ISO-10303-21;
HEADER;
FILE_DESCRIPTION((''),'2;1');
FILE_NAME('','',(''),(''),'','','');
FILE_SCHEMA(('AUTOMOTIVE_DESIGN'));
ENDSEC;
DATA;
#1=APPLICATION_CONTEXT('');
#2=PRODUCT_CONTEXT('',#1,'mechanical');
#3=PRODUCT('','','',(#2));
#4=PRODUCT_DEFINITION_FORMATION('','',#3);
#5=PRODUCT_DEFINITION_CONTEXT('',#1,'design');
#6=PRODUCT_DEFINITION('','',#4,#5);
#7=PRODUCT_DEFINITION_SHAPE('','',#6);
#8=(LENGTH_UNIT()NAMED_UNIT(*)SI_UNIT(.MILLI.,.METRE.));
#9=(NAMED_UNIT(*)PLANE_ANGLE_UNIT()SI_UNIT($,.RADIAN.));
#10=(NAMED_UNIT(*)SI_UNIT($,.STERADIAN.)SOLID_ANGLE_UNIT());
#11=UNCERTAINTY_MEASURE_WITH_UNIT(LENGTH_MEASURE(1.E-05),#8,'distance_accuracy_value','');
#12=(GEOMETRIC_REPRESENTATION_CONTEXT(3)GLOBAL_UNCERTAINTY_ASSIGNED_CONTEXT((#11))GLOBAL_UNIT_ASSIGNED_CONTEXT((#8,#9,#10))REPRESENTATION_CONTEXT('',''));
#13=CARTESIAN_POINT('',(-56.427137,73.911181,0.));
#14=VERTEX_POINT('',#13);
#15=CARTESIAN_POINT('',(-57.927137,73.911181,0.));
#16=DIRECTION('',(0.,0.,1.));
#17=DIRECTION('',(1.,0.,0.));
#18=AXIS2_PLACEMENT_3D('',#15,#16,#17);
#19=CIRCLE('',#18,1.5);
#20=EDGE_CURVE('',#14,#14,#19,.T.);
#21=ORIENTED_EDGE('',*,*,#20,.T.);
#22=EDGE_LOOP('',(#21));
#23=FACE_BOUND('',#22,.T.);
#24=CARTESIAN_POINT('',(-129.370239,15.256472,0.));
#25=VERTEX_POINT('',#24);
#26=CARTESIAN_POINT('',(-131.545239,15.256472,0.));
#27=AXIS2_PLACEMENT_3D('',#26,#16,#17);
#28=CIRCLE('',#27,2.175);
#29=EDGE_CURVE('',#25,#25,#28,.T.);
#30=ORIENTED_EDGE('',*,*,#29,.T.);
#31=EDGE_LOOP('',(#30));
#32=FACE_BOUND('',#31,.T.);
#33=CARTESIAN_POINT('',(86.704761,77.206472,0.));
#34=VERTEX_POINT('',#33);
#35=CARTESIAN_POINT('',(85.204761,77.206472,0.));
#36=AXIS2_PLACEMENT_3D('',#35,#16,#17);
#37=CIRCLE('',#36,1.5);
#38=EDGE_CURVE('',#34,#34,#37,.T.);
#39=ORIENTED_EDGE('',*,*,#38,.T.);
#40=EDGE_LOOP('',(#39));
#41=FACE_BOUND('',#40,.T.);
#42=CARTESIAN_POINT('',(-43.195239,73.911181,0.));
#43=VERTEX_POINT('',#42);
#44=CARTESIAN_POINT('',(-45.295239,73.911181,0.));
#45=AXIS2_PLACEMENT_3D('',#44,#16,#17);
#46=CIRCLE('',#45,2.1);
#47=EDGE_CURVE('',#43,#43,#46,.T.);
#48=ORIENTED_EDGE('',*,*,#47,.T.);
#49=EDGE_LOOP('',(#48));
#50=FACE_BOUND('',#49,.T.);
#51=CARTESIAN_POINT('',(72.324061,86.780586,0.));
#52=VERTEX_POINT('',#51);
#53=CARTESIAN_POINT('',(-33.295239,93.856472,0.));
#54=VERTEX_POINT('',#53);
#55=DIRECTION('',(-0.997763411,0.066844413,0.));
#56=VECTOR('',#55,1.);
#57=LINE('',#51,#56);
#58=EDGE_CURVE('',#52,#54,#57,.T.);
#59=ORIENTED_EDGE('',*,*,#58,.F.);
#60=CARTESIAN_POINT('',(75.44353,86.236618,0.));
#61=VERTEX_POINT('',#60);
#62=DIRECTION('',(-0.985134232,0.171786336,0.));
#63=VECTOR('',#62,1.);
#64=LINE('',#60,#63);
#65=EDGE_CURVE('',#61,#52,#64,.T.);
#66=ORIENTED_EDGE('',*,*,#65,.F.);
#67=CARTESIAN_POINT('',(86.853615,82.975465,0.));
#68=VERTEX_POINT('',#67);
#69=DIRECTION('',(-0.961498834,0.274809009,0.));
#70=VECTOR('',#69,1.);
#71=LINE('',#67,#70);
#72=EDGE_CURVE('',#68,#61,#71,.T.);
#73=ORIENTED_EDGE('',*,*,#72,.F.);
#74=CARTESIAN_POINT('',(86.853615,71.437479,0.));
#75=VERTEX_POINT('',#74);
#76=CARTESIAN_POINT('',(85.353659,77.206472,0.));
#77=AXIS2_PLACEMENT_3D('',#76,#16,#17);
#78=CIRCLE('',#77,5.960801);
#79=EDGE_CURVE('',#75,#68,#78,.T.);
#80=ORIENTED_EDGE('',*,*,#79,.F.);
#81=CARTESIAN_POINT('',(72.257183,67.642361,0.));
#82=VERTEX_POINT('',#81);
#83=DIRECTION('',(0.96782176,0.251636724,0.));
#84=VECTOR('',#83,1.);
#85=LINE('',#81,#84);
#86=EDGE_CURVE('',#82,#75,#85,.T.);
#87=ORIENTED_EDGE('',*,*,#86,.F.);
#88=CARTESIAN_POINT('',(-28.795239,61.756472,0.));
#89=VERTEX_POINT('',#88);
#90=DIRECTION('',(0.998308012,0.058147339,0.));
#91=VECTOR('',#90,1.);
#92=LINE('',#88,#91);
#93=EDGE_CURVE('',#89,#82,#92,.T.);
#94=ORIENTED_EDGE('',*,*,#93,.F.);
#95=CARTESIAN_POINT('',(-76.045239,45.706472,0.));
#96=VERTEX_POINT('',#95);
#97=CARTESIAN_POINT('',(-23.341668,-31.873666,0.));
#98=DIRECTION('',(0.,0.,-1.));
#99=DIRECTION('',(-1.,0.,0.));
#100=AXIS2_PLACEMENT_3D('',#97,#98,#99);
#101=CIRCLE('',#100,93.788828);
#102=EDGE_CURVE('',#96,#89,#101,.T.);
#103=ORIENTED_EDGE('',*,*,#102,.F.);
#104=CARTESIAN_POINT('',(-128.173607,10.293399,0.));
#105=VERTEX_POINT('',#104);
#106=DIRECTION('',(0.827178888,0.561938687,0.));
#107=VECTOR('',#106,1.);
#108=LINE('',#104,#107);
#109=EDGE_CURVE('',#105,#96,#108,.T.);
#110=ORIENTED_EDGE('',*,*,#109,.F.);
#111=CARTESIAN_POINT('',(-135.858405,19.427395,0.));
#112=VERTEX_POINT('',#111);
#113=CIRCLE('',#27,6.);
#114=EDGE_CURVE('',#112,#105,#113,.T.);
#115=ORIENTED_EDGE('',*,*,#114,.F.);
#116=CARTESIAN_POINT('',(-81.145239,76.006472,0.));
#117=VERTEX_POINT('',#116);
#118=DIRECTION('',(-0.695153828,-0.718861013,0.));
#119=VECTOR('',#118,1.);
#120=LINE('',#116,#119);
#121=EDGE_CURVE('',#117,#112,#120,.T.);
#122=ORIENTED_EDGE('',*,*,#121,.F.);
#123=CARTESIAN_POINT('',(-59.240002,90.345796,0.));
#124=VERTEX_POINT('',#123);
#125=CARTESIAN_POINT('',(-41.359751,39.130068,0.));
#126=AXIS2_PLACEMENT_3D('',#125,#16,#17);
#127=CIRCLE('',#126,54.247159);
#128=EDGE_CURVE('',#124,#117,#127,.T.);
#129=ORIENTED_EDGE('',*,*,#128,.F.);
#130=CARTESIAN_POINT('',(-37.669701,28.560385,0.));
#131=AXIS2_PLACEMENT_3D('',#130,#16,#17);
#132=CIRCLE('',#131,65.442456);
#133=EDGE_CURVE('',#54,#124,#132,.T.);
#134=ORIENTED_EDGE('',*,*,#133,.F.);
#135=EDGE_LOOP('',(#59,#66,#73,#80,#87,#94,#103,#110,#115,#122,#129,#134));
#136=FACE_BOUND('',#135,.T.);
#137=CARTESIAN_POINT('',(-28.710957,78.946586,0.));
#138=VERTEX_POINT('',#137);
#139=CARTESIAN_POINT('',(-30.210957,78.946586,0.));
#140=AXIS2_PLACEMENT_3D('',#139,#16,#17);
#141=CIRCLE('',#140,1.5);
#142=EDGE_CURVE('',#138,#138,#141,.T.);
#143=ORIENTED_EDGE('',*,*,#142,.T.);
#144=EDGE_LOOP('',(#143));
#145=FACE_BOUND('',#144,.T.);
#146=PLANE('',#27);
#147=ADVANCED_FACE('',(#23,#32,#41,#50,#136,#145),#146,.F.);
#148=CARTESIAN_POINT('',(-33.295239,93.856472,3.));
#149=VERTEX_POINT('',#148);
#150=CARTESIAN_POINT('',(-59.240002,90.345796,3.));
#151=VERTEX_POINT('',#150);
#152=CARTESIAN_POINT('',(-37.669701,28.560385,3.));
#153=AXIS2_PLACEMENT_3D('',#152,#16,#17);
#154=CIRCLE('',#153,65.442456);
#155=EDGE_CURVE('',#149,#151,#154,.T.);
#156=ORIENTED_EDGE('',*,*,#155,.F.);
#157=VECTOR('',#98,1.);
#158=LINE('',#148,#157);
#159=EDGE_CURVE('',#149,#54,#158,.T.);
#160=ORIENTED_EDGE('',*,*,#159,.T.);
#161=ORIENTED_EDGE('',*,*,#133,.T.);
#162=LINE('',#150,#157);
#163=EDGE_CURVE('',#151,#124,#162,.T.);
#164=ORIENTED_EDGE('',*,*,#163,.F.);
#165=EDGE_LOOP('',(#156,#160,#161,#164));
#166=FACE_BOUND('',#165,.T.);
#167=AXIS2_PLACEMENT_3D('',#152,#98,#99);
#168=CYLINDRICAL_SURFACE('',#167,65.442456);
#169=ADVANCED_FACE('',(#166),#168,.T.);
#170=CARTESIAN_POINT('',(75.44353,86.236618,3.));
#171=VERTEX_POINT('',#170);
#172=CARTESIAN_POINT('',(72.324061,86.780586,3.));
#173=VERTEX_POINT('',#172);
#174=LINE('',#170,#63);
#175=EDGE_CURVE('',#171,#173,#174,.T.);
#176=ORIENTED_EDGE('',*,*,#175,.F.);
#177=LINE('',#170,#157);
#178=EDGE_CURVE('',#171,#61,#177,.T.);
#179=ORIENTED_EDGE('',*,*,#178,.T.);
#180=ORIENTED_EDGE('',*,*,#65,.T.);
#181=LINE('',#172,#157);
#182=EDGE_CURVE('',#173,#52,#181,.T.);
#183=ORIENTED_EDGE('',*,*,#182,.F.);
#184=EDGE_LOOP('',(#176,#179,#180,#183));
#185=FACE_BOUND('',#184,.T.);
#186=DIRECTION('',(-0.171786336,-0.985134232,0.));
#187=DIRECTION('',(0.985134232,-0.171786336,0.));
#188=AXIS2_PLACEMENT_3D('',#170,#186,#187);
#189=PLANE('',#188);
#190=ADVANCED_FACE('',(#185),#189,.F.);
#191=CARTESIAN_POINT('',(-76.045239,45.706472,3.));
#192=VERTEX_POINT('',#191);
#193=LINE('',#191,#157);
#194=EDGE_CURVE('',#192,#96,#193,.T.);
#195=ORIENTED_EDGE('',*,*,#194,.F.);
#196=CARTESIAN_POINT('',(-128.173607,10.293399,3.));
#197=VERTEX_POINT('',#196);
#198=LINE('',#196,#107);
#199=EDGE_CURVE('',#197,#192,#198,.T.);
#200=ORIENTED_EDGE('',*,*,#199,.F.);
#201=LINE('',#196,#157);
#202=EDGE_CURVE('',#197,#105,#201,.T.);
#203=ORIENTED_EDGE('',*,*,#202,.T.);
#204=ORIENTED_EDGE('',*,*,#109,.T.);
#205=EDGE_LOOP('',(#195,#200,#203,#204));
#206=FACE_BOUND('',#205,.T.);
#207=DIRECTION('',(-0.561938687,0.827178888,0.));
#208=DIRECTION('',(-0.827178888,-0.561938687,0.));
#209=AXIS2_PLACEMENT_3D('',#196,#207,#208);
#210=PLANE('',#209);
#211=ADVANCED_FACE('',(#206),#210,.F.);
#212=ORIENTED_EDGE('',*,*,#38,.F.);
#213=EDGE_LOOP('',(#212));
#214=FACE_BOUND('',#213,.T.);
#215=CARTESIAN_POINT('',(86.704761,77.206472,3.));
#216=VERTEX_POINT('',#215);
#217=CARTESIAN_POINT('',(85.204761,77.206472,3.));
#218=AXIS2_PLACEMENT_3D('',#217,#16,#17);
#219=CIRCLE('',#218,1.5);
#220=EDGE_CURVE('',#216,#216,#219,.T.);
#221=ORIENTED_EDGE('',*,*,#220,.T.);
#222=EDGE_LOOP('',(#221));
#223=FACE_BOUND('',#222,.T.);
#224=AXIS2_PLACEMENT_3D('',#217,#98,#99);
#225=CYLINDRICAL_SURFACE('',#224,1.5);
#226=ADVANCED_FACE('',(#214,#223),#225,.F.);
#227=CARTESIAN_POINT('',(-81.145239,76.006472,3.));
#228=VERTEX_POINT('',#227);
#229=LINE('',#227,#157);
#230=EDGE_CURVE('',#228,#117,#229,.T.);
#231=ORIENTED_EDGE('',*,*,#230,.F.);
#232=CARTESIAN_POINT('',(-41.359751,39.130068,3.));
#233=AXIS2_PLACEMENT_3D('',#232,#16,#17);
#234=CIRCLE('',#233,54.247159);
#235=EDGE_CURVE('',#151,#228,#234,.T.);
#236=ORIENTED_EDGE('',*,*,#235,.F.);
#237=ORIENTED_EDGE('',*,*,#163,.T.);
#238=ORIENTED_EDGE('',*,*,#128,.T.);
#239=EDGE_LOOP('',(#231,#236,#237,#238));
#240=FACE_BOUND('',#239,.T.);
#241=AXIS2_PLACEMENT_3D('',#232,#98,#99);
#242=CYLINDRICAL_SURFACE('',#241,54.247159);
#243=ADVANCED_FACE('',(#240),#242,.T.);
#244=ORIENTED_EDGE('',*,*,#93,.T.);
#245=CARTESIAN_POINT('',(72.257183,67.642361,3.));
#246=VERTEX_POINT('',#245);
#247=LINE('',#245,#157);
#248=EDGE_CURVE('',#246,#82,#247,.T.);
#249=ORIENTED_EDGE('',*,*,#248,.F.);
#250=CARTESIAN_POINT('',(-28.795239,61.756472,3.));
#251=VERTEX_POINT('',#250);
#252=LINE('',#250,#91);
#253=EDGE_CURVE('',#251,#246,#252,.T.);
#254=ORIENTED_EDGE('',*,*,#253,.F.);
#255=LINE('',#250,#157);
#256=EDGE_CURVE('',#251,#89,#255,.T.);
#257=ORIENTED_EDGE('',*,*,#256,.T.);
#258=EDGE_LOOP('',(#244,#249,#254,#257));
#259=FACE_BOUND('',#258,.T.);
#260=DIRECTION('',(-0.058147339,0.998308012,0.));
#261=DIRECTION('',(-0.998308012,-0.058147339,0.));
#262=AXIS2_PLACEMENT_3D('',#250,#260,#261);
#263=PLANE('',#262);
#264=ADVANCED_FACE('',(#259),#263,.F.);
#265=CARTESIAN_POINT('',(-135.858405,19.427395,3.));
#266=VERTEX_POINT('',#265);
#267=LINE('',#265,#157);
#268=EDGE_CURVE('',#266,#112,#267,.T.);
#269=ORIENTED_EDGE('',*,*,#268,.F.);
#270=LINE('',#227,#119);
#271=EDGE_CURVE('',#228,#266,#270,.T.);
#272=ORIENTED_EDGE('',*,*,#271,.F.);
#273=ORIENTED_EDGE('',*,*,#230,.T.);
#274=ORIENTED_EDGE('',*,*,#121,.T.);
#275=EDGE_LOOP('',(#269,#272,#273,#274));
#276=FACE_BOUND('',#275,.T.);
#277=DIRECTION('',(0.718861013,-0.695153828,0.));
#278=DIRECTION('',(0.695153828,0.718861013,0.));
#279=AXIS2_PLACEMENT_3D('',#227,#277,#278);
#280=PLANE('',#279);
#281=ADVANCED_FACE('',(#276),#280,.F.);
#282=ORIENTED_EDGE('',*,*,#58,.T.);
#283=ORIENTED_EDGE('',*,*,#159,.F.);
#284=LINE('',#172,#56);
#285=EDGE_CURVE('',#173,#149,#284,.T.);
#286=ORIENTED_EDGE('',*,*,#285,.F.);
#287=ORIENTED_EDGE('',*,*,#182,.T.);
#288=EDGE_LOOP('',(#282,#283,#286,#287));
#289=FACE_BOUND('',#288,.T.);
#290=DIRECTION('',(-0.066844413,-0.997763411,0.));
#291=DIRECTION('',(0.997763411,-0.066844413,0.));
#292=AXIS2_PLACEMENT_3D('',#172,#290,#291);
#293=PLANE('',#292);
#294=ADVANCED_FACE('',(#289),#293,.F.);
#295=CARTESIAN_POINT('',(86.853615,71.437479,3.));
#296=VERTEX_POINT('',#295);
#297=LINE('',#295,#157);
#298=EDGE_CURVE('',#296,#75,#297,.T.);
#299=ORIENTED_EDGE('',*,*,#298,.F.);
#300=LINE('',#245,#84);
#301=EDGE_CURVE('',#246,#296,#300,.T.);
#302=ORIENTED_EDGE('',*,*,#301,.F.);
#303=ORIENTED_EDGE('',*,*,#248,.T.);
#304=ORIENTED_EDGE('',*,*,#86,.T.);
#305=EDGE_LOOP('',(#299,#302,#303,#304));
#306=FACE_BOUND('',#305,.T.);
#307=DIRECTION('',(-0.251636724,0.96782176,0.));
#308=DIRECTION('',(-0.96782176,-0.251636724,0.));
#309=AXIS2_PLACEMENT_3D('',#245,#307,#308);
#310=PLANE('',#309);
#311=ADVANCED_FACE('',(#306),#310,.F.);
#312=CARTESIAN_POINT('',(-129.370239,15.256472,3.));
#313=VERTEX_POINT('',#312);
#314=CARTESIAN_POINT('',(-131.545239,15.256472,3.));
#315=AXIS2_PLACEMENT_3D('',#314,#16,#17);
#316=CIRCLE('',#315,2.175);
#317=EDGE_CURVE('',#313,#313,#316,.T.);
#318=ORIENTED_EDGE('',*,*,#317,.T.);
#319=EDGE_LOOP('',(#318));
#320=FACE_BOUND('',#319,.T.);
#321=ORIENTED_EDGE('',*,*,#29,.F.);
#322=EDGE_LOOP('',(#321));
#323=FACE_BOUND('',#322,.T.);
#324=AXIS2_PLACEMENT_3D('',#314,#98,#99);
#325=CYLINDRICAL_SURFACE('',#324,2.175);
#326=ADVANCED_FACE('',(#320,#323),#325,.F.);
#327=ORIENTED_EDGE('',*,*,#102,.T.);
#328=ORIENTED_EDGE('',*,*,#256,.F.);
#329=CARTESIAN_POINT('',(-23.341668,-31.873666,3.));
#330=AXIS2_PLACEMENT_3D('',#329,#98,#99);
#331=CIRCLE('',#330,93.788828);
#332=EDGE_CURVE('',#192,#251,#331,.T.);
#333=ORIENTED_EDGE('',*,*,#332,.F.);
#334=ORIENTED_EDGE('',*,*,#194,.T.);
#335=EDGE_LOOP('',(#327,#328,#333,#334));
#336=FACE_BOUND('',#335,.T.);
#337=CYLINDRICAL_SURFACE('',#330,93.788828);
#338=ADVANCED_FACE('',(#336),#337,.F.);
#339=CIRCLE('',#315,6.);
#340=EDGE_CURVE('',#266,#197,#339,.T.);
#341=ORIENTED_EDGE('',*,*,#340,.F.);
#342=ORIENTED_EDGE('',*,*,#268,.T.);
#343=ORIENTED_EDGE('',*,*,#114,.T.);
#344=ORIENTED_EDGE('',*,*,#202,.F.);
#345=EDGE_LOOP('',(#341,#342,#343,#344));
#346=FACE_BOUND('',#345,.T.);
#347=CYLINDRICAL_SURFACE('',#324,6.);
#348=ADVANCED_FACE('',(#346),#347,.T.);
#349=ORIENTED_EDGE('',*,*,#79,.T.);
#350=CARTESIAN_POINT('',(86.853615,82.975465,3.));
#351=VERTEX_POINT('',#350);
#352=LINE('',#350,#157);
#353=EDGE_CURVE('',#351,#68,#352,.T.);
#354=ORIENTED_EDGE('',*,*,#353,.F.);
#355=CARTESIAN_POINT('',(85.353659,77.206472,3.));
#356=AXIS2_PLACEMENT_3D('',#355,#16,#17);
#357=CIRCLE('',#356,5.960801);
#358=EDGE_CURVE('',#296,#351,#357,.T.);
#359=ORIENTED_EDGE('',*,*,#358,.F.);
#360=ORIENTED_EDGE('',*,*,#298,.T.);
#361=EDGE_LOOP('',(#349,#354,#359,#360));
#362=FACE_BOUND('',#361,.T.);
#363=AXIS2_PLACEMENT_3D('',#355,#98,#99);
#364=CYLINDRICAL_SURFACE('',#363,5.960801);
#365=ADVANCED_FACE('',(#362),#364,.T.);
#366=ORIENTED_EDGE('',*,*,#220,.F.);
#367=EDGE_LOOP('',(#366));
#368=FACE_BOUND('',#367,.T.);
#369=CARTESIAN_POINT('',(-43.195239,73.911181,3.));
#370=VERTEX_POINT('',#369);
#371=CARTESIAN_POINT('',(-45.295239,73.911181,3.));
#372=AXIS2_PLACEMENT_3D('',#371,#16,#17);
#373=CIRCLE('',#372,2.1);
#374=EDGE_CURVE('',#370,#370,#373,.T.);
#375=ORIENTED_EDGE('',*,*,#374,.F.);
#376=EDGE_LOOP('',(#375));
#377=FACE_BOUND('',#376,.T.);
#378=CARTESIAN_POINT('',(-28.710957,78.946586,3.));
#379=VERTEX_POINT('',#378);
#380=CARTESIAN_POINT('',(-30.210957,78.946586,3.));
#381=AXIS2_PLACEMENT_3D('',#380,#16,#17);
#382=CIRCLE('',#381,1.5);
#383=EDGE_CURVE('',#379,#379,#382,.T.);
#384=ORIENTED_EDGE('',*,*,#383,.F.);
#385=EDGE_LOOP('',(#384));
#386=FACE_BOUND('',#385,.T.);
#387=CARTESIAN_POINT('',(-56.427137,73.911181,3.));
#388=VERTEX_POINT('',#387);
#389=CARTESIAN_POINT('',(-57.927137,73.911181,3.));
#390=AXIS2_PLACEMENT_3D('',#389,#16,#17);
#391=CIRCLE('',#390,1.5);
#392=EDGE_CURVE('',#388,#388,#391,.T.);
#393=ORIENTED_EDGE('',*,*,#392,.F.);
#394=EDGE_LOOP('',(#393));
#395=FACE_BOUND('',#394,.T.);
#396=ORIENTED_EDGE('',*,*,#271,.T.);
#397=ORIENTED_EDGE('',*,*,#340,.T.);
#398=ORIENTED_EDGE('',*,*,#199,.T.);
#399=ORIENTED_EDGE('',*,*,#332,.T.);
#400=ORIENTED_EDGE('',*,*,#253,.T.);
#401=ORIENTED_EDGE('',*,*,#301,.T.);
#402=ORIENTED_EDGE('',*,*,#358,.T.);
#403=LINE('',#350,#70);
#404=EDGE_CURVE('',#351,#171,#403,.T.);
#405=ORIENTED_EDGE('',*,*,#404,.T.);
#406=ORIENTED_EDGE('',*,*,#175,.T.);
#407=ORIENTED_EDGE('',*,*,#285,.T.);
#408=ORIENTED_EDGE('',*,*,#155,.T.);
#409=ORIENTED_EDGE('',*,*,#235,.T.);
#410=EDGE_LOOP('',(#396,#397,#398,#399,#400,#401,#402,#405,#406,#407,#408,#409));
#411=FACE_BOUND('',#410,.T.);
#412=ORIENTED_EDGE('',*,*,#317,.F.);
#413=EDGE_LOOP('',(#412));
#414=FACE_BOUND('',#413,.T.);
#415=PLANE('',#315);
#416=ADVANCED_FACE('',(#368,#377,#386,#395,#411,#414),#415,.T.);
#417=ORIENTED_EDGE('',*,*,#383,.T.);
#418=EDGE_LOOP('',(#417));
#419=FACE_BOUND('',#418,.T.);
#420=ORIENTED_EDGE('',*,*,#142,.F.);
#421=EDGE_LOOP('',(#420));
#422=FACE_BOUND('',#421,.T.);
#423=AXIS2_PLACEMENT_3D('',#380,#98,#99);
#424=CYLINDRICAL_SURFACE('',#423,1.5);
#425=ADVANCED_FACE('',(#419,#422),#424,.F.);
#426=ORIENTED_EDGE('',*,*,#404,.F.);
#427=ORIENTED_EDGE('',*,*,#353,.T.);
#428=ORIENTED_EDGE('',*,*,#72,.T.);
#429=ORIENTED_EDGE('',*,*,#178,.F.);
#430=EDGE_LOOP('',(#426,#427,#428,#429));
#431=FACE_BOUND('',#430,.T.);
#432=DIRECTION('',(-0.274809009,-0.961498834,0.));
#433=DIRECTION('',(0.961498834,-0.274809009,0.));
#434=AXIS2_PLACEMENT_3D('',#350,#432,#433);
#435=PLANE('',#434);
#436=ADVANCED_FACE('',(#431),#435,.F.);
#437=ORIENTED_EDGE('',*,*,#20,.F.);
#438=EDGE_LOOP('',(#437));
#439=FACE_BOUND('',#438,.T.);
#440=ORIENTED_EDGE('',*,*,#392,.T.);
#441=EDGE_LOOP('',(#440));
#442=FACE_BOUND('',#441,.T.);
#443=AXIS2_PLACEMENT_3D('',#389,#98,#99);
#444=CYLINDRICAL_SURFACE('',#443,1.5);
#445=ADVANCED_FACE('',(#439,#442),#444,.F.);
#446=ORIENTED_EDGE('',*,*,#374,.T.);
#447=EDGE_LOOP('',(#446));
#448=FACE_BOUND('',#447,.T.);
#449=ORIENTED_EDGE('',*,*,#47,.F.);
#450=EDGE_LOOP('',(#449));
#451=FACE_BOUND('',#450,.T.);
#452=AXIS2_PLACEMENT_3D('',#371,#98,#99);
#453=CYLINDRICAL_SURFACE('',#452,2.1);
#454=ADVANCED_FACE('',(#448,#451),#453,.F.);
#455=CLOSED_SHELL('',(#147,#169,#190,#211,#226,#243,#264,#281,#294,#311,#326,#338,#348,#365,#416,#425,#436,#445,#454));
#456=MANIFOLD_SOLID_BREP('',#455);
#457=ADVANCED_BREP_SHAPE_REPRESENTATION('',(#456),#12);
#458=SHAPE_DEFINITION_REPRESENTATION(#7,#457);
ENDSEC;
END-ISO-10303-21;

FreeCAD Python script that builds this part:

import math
import FreeCAD as App
import Part
import Sketcher
from FreeCAD import Vector
Q = App.Units.Quantity

doc = App.newDocument("Part")
body = doc.addObject("PartDesign::Body", "Body")

sketch1 = body.newObject("Sketcher::SketchObject", "Sketch")
sketch1.AttachmentSupport = (doc.getObject("XY_Plane"), [""])
sketch1.MapMode = "FlatFace"
sketch1.addGeometry([
    Part.LineSegment(Vector(-128.2, 10.3, 0), Vector(-76, 45.7, 0)),
    Part.ArcOfCircle(Part.Circle(Vector(-23.3, -31.9, 0), Vector(0, 0, 1), 93.8), math.radians(93), math.radians(124)),
    Part.LineSegment(Vector(-28.8, 61.8, 0), Vector(72.3, 67.6, 0)),
    Part.LineSegment(Vector(72.3, 67.6, 0), Vector(86.9, 71.4, 0)),
    Part.ArcOfCircle(Part.Circle(Vector(85.4, 77.2, 0), Vector(0, 0, 1), 6), math.radians(-75), math.radians(75)),
    Part.LineSegment(Vector(86.9, 83, 0), Vector(75.4, 86.2, 0)),
    Part.LineSegment(Vector(75.4, 86.2, 0), Vector(72.3, 86.8, 0)),
    Part.LineSegment(Vector(72.3, 86.8, 0), Vector(-33.3, 93.9, 0)),
    Part.ArcOfCircle(Part.Circle(Vector(-37.7, 28.6, 0), Vector(0, 0, 1), 65.4), math.radians(86), math.radians(109)),
    Part.ArcOfCircle(Part.Circle(Vector(-41.4, 39.1, 0), Vector(0, 0, 1), 54.2), math.radians(109), math.radians(137)),
    Part.LineSegment(Vector(-81.1, 76, 0), Vector(-135.9, 19.4, 0)),
    Part.ArcOfCircle(Part.Circle(Vector(-131.5, 15.3, 0), Vector(0, 0, 1), 6), math.radians(136), math.radians(304)),
    Part.Circle(Vector(-131.5, 15.3, 0), Vector(0, 0, 1), 2.2),
    Part.Circle(Vector(-57.9, 73.9, 0), Vector(0, 0, 1), 1.5),
    Part.Circle(Vector(-45.3, 73.9, 0), Vector(0, 0, 1), 2.1),
    Part.Circle(Vector(-30.2, 78.9, 0), Vector(0, 0, 1), 1.5),
    Part.Circle(Vector(85.2, 77.2, 0), Vector(0, 0, 1), 1.5),
], False)
sketch1.addConstraint([
    Sketcher.Constraint("Tangent", 0, 2, 1, 2),
    Sketcher.Constraint("Tangent", 1, 1, 2, 1),
    Sketcher.Constraint("Coincident", 2, 2, 3, 1),
    Sketcher.Constraint("Tangent", 3, 2, 4, 1),
    Sketcher.Constraint("Coincident", 4, 2, 5, 1),
    Sketcher.Constraint("Coincident", 5, 2, 6, 1),
    Sketcher.Constraint("Coincident", 6, 2, 7, 1),
    Sketcher.Constraint("Tangent", 7, 2, 8, 1),
    Sketcher.Constraint("Tangent", 8, 2, 9, 1),
    Sketcher.Constraint("Coincident", 9, 2, 10, 1),
    Sketcher.Constraint("Tangent", 10, 2, 11, 1),
    Sketcher.Constraint("Tangent", 11, 2, 0, 1),
    Sketcher.Constraint("Coincident", 12, 3, 11, 3),
    Sketcher.Constraint("Equal", 13, 15),
    Sketcher.Constraint("Equal", 15, 16),
    Sketcher.Constraint("Horizontal", 13, 3, 14, 3),
    Sketcher.Constraint("Horizontal", 4, 3, 16, 3),
    Sketcher.Constraint("Vertical", 3, 2, 4, 2),
    Sketcher.Constraint("Diameter", 13, Q("3 mm")),
    Sketcher.Constraint("Radius", 11, Q("6 mm")),
    Sketcher.Constraint("Diameter", 14, Q("4.2 mm")),
    Sketcher.Constraint("Diameter", 12, Q("4.35 mm")),
    Sketcher.Constraint("DistanceX", 14, 3, 7, 2, Q("12 mm")),
    Sketcher.Constraint("Radius", 4, Q("5.960801 mm")),
    Sketcher.Constraint("DistanceX", 14, 3, 16, 3, Q("130.5 mm")),
    Sketcher.Constraint("DistanceX", 14, 3, 1, 1, Q("16.5 mm")),
    Sketcher.Constraint("DistanceY", 1, 1, 7, 2, Q("32.1 mm")),
    Sketcher.Constraint("DistanceX", 9, 2, 0, 2, Q("5.1 mm")),
    Sketcher.Constraint("DistanceY", 0, 2, 9, 2, Q("30.3 mm")),
    Sketcher.Constraint("Radius", 9, Q("54.247159 mm")),
    Sketcher.Constraint("DistanceY", 11, 3, 4, 3, Q("61.95 mm")),
    Sketcher.Constraint("DistanceX", 11, 3, 14, 3, Q("86.25 mm")),
    Sketcher.Constraint("DistanceX", 0, 2, 14, 3, Q("30.75 mm")),
    Sketcher.Constraint("Radius", 1, Q("93.788828 mm")),
    Sketcher.Constraint("Radius", 8, Q("65.442456 mm")),
    Sketcher.Constraint("DistanceX", 8, 3, -1, 1, Q("37.669701 mm")),
    Sketcher.Constraint("DistanceY", -1, 1, 11, 2, Q("10.293399 mm")),
    Sketcher.Constraint("DistanceX", 11, 3, 13, 3, Q("73.618102 mm")),
    Sketcher.Constraint("DistanceY", 8, 3, 15, 3, Q("50.386201 mm")),
    Sketcher.Constraint("DistanceX", 6, 2, 16, 3, Q("12.8807 mm")),
    Sketcher.Constraint("DistanceX", 10, 2, 11, 2, Q("7.684798 mm")),
    Sketcher.Constraint("Distance", 2, Q("101.223691 mm")),
    Sketcher.Constraint("DistanceX", 1, 3, -1, 1, Q("23.341668 mm")),
    Sketcher.Constraint("DistanceX", -1, 1, 4, 3, Q("85.353659 mm")),
    Sketcher.Constraint("DistanceY", -1, 1, 13, 3, Q("73.911181 mm")),
    Sketcher.Constraint("DistanceX", -1, 1, 5, 2, Q("75.44353 mm")),
    Sketcher.Constraint("DistanceX", 14, 3, 15, 3, Q("15.084281 mm")),
    Sketcher.Constraint("DistanceY", 3, 2, 5, 2, Q("14.799138 mm")),
])
pad1 = body.newObject("PartDesign::Pad", "Pad")
pad1.Profile = sketch1
pad1.Length = 3

doc.recompute()
